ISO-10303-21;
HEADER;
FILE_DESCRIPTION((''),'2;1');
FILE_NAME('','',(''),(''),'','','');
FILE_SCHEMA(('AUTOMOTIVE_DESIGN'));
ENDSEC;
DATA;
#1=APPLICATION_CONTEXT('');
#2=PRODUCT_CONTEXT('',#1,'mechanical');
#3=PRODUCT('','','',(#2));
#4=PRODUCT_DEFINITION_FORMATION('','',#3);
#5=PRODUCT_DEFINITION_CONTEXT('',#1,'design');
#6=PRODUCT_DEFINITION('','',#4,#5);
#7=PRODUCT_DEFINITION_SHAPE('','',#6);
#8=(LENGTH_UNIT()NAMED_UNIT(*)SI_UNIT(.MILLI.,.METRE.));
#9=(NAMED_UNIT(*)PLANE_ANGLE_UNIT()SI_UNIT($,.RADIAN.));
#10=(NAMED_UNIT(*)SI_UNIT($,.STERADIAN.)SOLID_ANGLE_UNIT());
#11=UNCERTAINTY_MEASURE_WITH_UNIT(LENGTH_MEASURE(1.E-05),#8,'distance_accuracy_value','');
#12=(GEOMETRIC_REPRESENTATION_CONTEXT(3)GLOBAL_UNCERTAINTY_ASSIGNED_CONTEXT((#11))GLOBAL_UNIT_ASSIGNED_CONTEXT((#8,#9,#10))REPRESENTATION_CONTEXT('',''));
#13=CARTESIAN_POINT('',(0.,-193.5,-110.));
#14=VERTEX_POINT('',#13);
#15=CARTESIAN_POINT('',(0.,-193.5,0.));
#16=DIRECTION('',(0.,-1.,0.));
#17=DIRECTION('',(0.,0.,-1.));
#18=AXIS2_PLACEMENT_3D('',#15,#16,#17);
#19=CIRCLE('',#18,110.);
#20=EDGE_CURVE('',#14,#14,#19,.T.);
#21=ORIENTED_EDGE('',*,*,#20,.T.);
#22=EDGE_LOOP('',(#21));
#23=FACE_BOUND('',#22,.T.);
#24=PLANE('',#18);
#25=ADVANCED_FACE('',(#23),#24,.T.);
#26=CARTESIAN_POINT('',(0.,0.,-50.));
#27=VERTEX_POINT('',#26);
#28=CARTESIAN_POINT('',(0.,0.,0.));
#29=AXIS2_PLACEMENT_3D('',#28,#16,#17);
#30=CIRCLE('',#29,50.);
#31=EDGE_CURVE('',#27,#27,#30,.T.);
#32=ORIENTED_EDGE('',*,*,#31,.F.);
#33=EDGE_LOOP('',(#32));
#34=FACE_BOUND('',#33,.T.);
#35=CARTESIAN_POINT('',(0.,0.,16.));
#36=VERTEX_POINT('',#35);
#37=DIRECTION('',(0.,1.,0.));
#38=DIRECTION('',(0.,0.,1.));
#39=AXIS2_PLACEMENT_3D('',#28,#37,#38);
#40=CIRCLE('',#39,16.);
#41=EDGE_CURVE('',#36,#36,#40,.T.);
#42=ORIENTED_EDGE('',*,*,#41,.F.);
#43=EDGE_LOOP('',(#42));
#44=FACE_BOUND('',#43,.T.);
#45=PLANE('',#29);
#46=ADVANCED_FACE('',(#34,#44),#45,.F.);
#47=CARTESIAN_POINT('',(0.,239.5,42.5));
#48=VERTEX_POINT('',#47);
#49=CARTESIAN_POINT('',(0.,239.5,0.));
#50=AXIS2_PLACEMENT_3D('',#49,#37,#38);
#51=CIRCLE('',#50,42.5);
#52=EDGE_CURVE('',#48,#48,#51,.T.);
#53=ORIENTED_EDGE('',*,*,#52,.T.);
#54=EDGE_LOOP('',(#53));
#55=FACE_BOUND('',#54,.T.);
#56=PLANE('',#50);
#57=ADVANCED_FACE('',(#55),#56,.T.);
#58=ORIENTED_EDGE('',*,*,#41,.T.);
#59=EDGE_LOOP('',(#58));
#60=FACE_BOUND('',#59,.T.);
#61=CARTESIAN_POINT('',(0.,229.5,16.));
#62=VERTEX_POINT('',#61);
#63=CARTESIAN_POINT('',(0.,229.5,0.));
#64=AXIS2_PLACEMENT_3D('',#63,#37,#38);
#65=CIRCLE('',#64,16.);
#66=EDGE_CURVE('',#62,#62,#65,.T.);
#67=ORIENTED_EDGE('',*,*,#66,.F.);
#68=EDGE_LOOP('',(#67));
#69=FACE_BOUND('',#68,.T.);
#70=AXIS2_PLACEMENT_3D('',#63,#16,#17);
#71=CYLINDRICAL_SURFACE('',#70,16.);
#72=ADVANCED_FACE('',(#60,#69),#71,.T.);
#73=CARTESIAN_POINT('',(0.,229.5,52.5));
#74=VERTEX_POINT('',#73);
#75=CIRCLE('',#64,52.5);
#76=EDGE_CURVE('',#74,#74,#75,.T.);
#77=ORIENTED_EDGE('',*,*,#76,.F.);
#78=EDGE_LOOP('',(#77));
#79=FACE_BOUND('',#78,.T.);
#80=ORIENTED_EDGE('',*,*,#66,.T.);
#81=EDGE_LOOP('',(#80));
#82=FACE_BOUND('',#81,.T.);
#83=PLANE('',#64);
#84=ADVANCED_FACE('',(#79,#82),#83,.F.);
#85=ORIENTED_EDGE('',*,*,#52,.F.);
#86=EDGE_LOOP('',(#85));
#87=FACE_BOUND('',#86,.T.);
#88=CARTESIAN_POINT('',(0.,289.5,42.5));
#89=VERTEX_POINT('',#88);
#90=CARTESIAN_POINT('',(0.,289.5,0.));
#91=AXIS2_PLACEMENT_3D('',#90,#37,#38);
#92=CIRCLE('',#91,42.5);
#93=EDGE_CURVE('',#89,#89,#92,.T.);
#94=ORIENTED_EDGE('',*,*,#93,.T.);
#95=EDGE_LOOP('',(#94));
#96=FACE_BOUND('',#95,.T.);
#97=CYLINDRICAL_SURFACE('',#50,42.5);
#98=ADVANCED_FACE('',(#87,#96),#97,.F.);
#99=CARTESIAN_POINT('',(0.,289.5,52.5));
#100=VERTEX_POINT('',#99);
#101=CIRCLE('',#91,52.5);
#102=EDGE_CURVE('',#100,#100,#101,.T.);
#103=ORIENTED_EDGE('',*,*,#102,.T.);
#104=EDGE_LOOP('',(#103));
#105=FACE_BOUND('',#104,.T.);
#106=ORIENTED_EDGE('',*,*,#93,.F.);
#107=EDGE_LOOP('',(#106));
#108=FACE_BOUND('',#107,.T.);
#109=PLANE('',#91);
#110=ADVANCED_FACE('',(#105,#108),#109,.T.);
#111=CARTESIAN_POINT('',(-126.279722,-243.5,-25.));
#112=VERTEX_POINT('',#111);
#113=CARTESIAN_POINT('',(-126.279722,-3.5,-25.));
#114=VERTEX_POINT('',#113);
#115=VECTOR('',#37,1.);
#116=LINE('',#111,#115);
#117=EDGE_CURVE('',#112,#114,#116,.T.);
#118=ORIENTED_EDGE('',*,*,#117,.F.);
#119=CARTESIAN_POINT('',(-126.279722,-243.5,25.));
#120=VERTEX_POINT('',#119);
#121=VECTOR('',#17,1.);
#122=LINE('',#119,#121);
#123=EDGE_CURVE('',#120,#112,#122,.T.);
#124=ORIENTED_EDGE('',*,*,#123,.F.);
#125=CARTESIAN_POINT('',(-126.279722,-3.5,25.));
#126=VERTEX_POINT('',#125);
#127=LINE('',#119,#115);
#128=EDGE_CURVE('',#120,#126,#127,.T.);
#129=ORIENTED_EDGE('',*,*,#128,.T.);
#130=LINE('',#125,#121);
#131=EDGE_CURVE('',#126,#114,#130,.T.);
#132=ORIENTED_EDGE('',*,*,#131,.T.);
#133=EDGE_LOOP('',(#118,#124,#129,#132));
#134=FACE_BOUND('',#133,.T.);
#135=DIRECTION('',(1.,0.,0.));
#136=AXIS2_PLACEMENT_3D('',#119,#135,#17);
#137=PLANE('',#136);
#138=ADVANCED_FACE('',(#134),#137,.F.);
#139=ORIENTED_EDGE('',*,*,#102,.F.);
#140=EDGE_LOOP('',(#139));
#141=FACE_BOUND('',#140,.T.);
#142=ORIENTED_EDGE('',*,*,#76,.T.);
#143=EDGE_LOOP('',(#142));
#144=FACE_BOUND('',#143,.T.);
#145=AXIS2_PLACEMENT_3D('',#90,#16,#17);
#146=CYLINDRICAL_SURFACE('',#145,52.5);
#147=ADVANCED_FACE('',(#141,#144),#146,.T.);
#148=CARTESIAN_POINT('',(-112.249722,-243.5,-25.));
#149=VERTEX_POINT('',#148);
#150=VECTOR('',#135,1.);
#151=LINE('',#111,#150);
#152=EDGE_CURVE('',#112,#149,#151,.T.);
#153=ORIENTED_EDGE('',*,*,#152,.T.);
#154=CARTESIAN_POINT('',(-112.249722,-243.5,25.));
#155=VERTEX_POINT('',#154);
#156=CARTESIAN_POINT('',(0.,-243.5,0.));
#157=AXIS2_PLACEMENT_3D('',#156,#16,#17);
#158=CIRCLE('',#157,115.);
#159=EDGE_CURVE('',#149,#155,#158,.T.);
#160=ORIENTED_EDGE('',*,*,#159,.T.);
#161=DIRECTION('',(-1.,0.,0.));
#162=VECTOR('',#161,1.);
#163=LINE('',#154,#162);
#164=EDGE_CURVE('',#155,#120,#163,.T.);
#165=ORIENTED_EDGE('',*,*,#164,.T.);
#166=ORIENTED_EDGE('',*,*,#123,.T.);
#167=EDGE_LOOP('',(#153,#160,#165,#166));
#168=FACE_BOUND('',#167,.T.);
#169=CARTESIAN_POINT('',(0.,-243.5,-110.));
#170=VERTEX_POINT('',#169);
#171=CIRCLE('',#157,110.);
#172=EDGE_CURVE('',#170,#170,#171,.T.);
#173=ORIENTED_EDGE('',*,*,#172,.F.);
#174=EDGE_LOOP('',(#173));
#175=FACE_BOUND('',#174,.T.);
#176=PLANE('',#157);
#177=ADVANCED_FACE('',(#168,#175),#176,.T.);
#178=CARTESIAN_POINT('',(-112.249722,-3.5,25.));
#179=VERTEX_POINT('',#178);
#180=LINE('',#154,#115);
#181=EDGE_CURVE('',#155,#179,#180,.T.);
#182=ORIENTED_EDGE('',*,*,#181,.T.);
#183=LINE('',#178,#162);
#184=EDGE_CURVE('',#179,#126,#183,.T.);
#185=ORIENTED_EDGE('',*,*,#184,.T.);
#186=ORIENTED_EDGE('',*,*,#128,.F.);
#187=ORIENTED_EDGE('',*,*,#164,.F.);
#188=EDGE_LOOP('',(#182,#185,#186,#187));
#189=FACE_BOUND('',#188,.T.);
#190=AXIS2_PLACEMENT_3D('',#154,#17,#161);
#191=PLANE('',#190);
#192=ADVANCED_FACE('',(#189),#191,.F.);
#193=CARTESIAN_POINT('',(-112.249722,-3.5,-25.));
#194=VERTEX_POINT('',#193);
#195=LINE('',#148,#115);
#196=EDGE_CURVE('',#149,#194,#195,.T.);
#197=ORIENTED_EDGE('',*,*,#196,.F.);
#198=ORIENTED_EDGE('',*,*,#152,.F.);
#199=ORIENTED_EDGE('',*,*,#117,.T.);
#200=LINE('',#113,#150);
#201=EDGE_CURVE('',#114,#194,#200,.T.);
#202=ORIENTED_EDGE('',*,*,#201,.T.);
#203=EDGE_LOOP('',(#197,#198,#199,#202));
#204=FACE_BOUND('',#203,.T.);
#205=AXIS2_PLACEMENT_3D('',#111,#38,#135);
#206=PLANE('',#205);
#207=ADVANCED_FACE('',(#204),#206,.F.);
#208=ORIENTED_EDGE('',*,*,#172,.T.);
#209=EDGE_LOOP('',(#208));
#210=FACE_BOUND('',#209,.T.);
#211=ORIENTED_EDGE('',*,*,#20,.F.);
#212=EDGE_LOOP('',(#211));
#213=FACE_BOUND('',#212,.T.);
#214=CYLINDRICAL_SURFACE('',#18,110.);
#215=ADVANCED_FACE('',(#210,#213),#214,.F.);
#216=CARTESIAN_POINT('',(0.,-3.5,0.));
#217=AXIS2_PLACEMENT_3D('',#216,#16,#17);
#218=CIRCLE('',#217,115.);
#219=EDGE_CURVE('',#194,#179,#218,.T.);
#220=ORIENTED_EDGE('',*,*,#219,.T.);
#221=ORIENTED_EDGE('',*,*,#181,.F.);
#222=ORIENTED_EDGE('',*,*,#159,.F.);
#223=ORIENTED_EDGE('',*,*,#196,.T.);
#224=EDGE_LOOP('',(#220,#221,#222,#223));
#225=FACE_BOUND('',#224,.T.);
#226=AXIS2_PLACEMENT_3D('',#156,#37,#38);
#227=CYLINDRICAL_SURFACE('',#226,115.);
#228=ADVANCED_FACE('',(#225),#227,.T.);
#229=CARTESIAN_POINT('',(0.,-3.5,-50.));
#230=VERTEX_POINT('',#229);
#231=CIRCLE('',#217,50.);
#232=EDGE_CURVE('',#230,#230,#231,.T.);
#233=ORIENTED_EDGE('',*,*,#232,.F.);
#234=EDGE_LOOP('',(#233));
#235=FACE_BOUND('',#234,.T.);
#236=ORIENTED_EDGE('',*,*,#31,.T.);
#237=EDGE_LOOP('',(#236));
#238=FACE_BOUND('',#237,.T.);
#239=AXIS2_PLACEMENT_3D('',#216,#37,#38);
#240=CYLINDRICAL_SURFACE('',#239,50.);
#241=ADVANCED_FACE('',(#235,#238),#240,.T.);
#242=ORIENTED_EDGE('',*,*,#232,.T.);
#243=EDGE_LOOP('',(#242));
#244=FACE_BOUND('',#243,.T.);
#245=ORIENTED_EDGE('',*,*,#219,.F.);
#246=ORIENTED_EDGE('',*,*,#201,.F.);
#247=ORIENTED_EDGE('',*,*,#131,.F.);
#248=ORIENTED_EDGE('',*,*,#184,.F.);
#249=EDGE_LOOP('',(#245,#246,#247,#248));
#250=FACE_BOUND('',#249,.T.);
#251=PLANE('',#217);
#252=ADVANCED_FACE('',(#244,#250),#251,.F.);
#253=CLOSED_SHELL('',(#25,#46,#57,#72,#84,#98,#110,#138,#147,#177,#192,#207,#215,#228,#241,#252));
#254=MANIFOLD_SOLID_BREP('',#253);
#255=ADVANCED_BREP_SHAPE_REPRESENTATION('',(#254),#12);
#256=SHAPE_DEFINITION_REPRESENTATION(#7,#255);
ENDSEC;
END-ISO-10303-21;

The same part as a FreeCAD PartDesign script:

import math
import FreeCAD as App
import Part
import Sketcher
from FreeCAD import Vector

doc = App.newDocument("Part")
body = doc.addObject("PartDesign::Body", "Body")

sketch1 = doc.addObject("Sketcher::SketchObject", "Sketch")
body.addObject(sketch1)
sketch1.AttachmentSupport = (doc.XZ_Plane, [""])
sketch1.MapMode = "FlatFace"
sketch1.addGeometry(Part.Circle(Vector(0, 0, 0), Vector(0, 0, 1), 16), False)
sketch1.addConstraint([
    Sketcher.Constraint("Coincident", 0, 3, -1, 1),
    Sketcher.Constraint("Diameter", 0, 32.0),
])
pad1 = doc.addObject("PartDesign::Pad", "Pad")
body.addObject(pad1)
pad1.Profile = sketch1
pad1.Length = 229.5
pad1.Reversed = True

sketch2 = doc.addObject("Sketcher::SketchObject", "Sketch001")
body.addObject(sketch2)
sketch2.AttachmentSupport = (doc.XZ_Plane, [""])
sketch2.MapMode = "FlatFace"
sketch2.AttachmentOffset = App.Placement(Vector(0, 0, -229.5), App.Rotation())
sketch2.addGeometry(Part.Circle(Vector(0, 0, 0), Vector(0, 0, 1), 52), False)
sketch2.addConstraint([
    Sketcher.Constraint("Coincident", 0, 3, -1, 1),
    Sketcher.Constraint("Diameter", 0, 105.0),
])
pad2 = doc.addObject("PartDesign::Pad", "Pad001")
body.addObject(pad2)
pad2.Profile = sketch2
pad2.Length = 60
pad2.Reversed = True

sketch3 = doc.addObject("Sketcher::SketchObject", "Sketch002")
body.addObject(sketch3)
sketch3.AttachmentSupport = (doc.XZ_Plane, [""])
sketch3.MapMode = "FlatFace"
sketch3.AttachmentOffset = App.Placement(Vector(0, 0, -289.5), App.Rotation())
sketch3.addGeometry(Part.Circle(Vector(0, 0, 0), Vector(0, 0, 1), 42), False)
sketch3.addConstraint([
    Sketcher.Constraint("Coincident", 0, 3, -1, 1),
    Sketcher.Constraint("Diameter", 0, 85.0),
])
pocket1 = doc.addObject("PartDesign::Pocket", "Pocket")
body.addObject(pocket1)
pocket1.Profile = sketch3
pocket1.Length = 50
pocket1.Reversed = True

sketch4 = doc.addObject("Sketcher::SketchObject", "Sketch003")
body.addObject(sketch4)
sketch4.AttachmentSupport = (doc.XZ_Plane, [""])
sketch4.MapMode = "FlatFace"
sketch4.addGeometry(Part.Circle(Vector(0, 0, 0), Vector(0, 0, 1), 50), False)
sketch4.addConstraint([
    Sketcher.Constraint("Coincident", 0, 3, -1, 1),
    Sketcher.Constraint("Diameter", 0, 100.0),
])
pad3 = doc.addObject("PartDesign::Pad", "Pad002")
body.addObject(pad3)
pad3.Profile = sketch4
pad3.Length = 3.5

sketch5 = doc.addObject("Sketcher::SketchObject", "Sketch004")
body.addObject(sketch5)
sketch5.AttachmentSupport = (doc.XZ_Plane, [""])
sketch5.MapMode = "FlatFace"
sketch5.AttachmentOffset = App.Placement(Vector(0, 0, 3.5), App.Rotation())
sketch5.addGeometry([
    Part.LineSegment(Vector(-126, -25, 0), Vector(-112, -25, 0)),
    Part.ArcOfCircle(Part.Circle(Vector(0, 0, 0), Vector(0, 0, 1), 115), math.radians(-167), math.radians(167)),
    Part.LineSegment(Vector(-112, 25, 0), Vector(-126, 25, 0)),
    Part.LineSegment(Vector(-126, 25, 0), Vector(-126, -25, 0)),
], False)
sketch5.addConstraint([
    Sketcher.Constraint("Coincident", 0, 2, 1, 1),
    Sketcher.Constraint("Coincident", 1, 2, 2, 1),
    Sketcher.Constraint("Coincident", 2, 2, 3, 1),
    Sketcher.Constraint("Coincident", 3, 2, 0, 1),
    Sketcher.Constraint("Horizontal", 0),
    Sketcher.Constraint("Horizontal", 2),
    Sketcher.Constraint("Vertical", 3),
    Sketcher.Constraint("Coincident", 1, 3, -1, 1),
    Sketcher.Constraint("Vertical", 0, 2, 1, 2),
    Sketcher.Constraint("Radius", 1, 115.0),
    Sketcher.Constraint("DistanceY", 3, 2, 3, 1, 50.0),
    Sketcher.Constraint("DistanceX", 0, 1, 0, 2, 14.03),
])
pad4 = doc.addObject("PartDesign::Pad", "Pad003")
body.addObject(pad4)
pad4.Profile = sketch5
pad4.Length = 240

sketch6 = doc.addObject("Sketcher::SketchObject", "Sketch005")
body.addObject(sketch6)
sketch6.AttachmentSupport = (doc.XZ_Plane, [""])
sketch6.MapMode = "FlatFace"
sketch6.AttachmentOffset = App.Placement(Vector(0, 0, 243.5), App.Rotation())
sketch6.addGeometry(Part.Circle(Vector(0, 0, 0), Vector(0, 0, 1), 110), False)
sketch6.addConstraint([
    Sketcher.Constraint("Coincident", 0, 3, -1, 1),
    Sketcher.Constraint("Diameter", 0, 220.0),
])
pocket2 = doc.addObject("PartDesign::Pocket", "Pocket001")
body.addObject(pocket2)
pocket2.Profile = sketch6
pocket2.Length = 50

doc.recompute()
